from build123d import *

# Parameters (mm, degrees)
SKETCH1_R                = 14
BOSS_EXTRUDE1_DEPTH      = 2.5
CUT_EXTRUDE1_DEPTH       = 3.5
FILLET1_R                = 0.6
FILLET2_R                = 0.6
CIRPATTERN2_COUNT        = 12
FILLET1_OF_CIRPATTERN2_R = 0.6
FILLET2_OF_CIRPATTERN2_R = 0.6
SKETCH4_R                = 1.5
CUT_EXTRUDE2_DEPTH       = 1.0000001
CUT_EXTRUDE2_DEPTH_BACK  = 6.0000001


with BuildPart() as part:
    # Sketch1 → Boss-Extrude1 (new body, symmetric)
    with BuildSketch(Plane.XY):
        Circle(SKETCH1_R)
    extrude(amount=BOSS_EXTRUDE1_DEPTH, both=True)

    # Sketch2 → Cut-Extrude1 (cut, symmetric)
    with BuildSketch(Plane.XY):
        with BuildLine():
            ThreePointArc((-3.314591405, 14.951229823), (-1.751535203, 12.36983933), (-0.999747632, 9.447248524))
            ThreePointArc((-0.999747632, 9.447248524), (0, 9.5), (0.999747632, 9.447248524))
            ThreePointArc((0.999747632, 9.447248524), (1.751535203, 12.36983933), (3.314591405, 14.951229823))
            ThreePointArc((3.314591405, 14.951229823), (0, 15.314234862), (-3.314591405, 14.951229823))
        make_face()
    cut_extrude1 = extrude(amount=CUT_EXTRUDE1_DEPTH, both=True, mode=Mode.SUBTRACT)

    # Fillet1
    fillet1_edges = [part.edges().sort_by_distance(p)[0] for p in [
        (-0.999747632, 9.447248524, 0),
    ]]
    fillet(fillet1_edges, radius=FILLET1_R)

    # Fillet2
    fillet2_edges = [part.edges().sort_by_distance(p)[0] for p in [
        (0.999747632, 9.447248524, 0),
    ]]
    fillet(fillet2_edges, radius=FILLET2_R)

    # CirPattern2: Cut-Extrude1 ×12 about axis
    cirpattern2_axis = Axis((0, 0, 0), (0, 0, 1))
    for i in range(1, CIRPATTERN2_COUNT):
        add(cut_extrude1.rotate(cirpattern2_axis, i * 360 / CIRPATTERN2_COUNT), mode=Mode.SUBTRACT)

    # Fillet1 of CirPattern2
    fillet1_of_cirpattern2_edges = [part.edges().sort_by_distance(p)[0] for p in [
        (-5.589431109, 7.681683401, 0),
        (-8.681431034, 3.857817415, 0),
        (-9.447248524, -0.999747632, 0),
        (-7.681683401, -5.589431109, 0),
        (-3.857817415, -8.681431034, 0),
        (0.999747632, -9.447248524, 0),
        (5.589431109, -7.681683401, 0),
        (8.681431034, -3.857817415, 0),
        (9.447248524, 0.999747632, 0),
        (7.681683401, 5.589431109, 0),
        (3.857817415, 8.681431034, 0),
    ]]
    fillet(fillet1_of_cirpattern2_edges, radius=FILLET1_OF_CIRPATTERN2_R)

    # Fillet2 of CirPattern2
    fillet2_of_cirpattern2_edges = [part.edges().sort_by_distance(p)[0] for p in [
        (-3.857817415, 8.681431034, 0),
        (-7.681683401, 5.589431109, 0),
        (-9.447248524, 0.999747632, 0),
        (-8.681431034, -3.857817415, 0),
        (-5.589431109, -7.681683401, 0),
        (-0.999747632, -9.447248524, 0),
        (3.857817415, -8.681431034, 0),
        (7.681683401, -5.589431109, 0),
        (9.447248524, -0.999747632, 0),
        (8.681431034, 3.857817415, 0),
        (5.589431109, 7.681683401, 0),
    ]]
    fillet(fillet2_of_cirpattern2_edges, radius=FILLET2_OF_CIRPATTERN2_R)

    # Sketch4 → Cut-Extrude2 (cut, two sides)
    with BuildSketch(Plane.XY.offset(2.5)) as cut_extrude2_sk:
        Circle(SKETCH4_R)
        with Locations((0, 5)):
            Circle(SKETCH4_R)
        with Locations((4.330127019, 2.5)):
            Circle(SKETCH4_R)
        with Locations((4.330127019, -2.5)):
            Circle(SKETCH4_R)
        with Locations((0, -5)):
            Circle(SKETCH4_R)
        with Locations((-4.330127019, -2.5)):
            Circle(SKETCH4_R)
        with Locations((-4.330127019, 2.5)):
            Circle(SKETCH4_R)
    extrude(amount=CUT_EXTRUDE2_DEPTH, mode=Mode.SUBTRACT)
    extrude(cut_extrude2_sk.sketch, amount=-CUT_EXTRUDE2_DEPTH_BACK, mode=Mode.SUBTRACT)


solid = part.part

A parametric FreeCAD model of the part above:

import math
import FreeCAD as App
import Part
import Sketcher

V = App.Vector
Q = App.Units.Quantity


def edges_at(feature, points):
    """Names of the edges that pass closest to the given points."""
    edges = feature.Shape.Edges
    near = lambda p: min(range(len(edges)), key=lambda i: edges[i].distToShape(Part.Vertex(*p))[0])
    return sorted({f"Edge{near(p) + 1}" for p in points})

doc = App.newDocument("Part")
body = doc.addObject("PartDesign::Body", "Body")

sketch1 = body.newObject("Sketcher::SketchObject", "Sketch")
sketch1.AttachmentSupport = (doc.getObject("XY_Plane"), [""])
sketch1.MapMode = "FlatFace"
sketch1.addGeometry(Part.Circle(V(0, 0, 0), V(0, 0, 1), 14), False)
sketch1.addConstraint(Sketcher.Constraint("Coincident", 0, 3, -1, 1))
sketch1.addConstraint(Sketcher.Constraint("Diameter", 0, Q("28 mm")))
pad1 = body.newObject("PartDesign::Pad", "Pad")
pad1.Profile = sketch1
pad1.Length = 5
pad1.Midplane = True

sketch2 = body.newObject("Sketcher::SketchObject", "Sketch001")
sketch2.AttachmentSupport = (doc.getObject("XY_Plane"), [""])
sketch2.MapMode = "FlatFace"
sketch2.addGeometry(Part.ArcOfCircle(Part.Circle(V(-11.3, 8.4, 0), V(0, 0, 1), 10.3), math.radians(6), math.radians(40)), False)
sketch2.addGeometry(Part.ArcOfCircle(Part.Circle(V(0, 0, 0), V(0, 0, 1), 9.5), math.radians(83.96), math.radians(96.04)), False)
sketch2.addGeometry(Part.ArcOfCircle(Part.Circle(V(11.3, 8.4, 0), V(0, 0, 1), 10.3), math.radians(140), math.radians(174)), False)
sketch2.addGeometry(Part.ArcOfCircle(Part.Circle(V(0, 0, 0), V(0, 0, 1), 15.3), math.radians(78), math.radians(102)), False)
sketch2.addConstraint(Sketcher.Constraint("Coincident", 0, 1, 1, 2))
sketch2.addConstraint(Sketcher.Constraint("Coincident", 1, 1, 2, 2))
sketch2.addConstraint(Sketcher.Constraint("Coincident", 2, 1, 3, 1))
sketch2.addConstraint(Sketcher.Constraint("Coincident", 3, 2, 0, 2))
sketch2.addConstraint(Sketcher.Constraint("Coincident", 1, 3, -1, 1))
sketch2.addConstraint(Sketcher.Constraint("Coincident", 3, 3, -1, 1))
sketch2.addConstraint(Sketcher.Constraint("Equal", 0, 2))
sketch2.addConstraint(Sketcher.Constraint("Symmetric", 0, 3, 2, 3, -2))
sketch2.addConstraint(Sketcher.Constraint("Radius", 1, Q("9.5 mm")))
sketch2.addConstraint(Sketcher.Constraint("Radius", 0, Q("10.347382 mm")))
sketch2.addConstraint(Sketcher.Constraint("Radius", 3, Q("15.314235 mm")))
sketch2.addConstraint(Sketcher.Constraint("DistanceY", -1, 1, 0, 1, Q("9.447249 mm")))
sketch2.addConstraint(Sketcher.Constraint("DistanceX", -1, 1, 2, 1, Q("3.314591 mm")))
pocket1 = body.newObject("PartDesign::Pocket", "Pocket")
pocket1.Profile = sketch2
pocket1.Length = 7
pocket1.Midplane = True
doc.recompute()

fillet = body.newObject("PartDesign::Fillet", "Fillet")
fillet.Base = (pocket1, edges_at(pocket1, [(-1, 9.447, 0)]))
fillet.Radius = 0.6
doc.recompute()

fillet2 = body.newObject("PartDesign::Fillet", "Fillet001")
fillet2.Base = (fillet, edges_at(fillet, [(1, 9.447, 0)]))
fillet2.Radius = 0.6
doc.recompute()

polarpattern = body.newObject("PartDesign::PolarPattern", "PolarPattern")
polarpattern.Originals = [pocket1]
polarpattern.Axis = (doc.getObject("Z_Axis"), [""])
polarpattern.Angle = 360
polarpattern.Occurrences = 12
body.Tip = polarpattern
doc.recompute()

fillet3 = body.newObject("PartDesign::Fillet", "Fillet002")
fillet3.Base = (polarpattern, edges_at(polarpattern, [
    (-5.589, 7.682, 0),
    (-8.681, 3.858, 0),
    (-9.447, -1, 0),
    (-7.682, -5.589, 0),
    (-3.858, -8.681, 0),
    (1, -9.447, 0),
    (5.589, -7.682, 0),
    (8.681, -3.858, 0),
    (9.447, 1, 0),
    (7.682, 5.589, 0),
    (3.858, 8.681, 0),
]))
fillet3.Radius = 0.6
doc.recompute()

fillet4 = body.newObject("PartDesign::Fillet", "Fillet003")
fillet4.Base = (fillet3, edges_at(fillet3, [
    (-3.858, 8.681, 0),
    (-7.682, 5.589, 0),
    (-9.447, 1, 0),
    (-8.681, -3.858, 0),
    (-5.589, -7.682, 0),
    (-1, -9.447, 0),
    (3.858, -8.681, 0),
    (7.682, -5.589, 0),
    (9.447, -1, 0),
    (8.681, 3.858, 0),
    (5.589, 7.682, 0),
]))
fillet4.Radius = 0.6

sketch3 = body.newObject("Sketcher::SketchObject", "Sketch002")
sketch3.AttachmentSupport = (doc.getObject("XY_Plane"), [""])
sketch3.MapMode = "FlatFace"
sketch3.AttachmentOffset = App.Placement(V(0, 0, 2.5), App.Rotation())
sketch3.addGeometry(Part.Circle(V(0, 0, 0), V(0, 0, 1), 1.5), False)
sketch3.addGeometry(Part.Circle(V(0, 5, 0), V(0, 0, 1), 1.5), False)
sketch3.addGeometry(Part.Circle(V(4.3, 2.5, 0), V(0, 0, 1), 1.5), False)
sketch3.addGeometry(Part.Circle(V(4.3, -2.5, 0), V(0, 0, 1), 1.5), False)
sketch3.addGeometry(Part.Circle(V(0, -5, 0), V(0, 0, 1), 1.5), False)
sketch3.addGeometry(Part.Circle(V(-4.3, -2.5, 0), V(0, 0, 1), 1.5), False)
sketch3.addGeometry(Part.Circle(V(-4.3, 2.5, 0), V(0, 0, 1), 1.5), False)
sketch3.addConstraint(Sketcher.Constraint("Coincident", 0, 3, -1, 1))
sketch3.addConstraint(Sketcher.Constraint("Equal", 0, 1))
sketch3.addConstraint(Sketcher.Constraint("Equal", 1, 2))
sketch3.addConstraint(Sketcher.Constraint("Equal", 2, 3))
sketch3.addConstraint(Sketcher.Constraint("Equal", 3, 4))
sketch3.addConstraint(Sketcher.Constraint("Equal", 4, 5))
sketch3.addConstraint(Sketcher.Constraint("Equal", 5, 6))
sketch3.addConstraint(Sketcher.Constraint("Symmetric", 1, 3, 4, 3, -1, 1))
sketch3.addConstraint(Sketcher.Constraint("Symmetric", 2, 3, 5, 3, -1, 1))
sketch3.addConstraint(Sketcher.Constraint("Symmetric", 3, 3, 6, 3, -1, 1))
sketch3.addConstraint(Sketcher.Constraint("Symmetric", 3, 3, 5, 3, -2))
sketch3.addConstraint(Sketcher.Constraint("PointOnObject", 1, 3, -2))
sketch3.addConstraint(Sketcher.Constraint("Diameter", 0, Q("3 mm")))
sketch3.addConstraint(Sketcher.Constraint("DistanceY", -1, 1, 1, 3, Q("5 mm")))
sketch3.addConstraint(Sketcher.Constraint("DistanceY", 3, 3, 2, 3, Q("5 mm")))
sketch3.addConstraint(Sketcher.Constraint("DistanceX", -1, 1, 2, 3, Q("4.330127 mm")))
pocket2 = body.newObject("PartDesign::Pocket", "Pocket001")
pocket2.Profile = sketch3
pocket2.Type = "ThroughAll"
pocket2.Midplane = True

doc.recompute()
